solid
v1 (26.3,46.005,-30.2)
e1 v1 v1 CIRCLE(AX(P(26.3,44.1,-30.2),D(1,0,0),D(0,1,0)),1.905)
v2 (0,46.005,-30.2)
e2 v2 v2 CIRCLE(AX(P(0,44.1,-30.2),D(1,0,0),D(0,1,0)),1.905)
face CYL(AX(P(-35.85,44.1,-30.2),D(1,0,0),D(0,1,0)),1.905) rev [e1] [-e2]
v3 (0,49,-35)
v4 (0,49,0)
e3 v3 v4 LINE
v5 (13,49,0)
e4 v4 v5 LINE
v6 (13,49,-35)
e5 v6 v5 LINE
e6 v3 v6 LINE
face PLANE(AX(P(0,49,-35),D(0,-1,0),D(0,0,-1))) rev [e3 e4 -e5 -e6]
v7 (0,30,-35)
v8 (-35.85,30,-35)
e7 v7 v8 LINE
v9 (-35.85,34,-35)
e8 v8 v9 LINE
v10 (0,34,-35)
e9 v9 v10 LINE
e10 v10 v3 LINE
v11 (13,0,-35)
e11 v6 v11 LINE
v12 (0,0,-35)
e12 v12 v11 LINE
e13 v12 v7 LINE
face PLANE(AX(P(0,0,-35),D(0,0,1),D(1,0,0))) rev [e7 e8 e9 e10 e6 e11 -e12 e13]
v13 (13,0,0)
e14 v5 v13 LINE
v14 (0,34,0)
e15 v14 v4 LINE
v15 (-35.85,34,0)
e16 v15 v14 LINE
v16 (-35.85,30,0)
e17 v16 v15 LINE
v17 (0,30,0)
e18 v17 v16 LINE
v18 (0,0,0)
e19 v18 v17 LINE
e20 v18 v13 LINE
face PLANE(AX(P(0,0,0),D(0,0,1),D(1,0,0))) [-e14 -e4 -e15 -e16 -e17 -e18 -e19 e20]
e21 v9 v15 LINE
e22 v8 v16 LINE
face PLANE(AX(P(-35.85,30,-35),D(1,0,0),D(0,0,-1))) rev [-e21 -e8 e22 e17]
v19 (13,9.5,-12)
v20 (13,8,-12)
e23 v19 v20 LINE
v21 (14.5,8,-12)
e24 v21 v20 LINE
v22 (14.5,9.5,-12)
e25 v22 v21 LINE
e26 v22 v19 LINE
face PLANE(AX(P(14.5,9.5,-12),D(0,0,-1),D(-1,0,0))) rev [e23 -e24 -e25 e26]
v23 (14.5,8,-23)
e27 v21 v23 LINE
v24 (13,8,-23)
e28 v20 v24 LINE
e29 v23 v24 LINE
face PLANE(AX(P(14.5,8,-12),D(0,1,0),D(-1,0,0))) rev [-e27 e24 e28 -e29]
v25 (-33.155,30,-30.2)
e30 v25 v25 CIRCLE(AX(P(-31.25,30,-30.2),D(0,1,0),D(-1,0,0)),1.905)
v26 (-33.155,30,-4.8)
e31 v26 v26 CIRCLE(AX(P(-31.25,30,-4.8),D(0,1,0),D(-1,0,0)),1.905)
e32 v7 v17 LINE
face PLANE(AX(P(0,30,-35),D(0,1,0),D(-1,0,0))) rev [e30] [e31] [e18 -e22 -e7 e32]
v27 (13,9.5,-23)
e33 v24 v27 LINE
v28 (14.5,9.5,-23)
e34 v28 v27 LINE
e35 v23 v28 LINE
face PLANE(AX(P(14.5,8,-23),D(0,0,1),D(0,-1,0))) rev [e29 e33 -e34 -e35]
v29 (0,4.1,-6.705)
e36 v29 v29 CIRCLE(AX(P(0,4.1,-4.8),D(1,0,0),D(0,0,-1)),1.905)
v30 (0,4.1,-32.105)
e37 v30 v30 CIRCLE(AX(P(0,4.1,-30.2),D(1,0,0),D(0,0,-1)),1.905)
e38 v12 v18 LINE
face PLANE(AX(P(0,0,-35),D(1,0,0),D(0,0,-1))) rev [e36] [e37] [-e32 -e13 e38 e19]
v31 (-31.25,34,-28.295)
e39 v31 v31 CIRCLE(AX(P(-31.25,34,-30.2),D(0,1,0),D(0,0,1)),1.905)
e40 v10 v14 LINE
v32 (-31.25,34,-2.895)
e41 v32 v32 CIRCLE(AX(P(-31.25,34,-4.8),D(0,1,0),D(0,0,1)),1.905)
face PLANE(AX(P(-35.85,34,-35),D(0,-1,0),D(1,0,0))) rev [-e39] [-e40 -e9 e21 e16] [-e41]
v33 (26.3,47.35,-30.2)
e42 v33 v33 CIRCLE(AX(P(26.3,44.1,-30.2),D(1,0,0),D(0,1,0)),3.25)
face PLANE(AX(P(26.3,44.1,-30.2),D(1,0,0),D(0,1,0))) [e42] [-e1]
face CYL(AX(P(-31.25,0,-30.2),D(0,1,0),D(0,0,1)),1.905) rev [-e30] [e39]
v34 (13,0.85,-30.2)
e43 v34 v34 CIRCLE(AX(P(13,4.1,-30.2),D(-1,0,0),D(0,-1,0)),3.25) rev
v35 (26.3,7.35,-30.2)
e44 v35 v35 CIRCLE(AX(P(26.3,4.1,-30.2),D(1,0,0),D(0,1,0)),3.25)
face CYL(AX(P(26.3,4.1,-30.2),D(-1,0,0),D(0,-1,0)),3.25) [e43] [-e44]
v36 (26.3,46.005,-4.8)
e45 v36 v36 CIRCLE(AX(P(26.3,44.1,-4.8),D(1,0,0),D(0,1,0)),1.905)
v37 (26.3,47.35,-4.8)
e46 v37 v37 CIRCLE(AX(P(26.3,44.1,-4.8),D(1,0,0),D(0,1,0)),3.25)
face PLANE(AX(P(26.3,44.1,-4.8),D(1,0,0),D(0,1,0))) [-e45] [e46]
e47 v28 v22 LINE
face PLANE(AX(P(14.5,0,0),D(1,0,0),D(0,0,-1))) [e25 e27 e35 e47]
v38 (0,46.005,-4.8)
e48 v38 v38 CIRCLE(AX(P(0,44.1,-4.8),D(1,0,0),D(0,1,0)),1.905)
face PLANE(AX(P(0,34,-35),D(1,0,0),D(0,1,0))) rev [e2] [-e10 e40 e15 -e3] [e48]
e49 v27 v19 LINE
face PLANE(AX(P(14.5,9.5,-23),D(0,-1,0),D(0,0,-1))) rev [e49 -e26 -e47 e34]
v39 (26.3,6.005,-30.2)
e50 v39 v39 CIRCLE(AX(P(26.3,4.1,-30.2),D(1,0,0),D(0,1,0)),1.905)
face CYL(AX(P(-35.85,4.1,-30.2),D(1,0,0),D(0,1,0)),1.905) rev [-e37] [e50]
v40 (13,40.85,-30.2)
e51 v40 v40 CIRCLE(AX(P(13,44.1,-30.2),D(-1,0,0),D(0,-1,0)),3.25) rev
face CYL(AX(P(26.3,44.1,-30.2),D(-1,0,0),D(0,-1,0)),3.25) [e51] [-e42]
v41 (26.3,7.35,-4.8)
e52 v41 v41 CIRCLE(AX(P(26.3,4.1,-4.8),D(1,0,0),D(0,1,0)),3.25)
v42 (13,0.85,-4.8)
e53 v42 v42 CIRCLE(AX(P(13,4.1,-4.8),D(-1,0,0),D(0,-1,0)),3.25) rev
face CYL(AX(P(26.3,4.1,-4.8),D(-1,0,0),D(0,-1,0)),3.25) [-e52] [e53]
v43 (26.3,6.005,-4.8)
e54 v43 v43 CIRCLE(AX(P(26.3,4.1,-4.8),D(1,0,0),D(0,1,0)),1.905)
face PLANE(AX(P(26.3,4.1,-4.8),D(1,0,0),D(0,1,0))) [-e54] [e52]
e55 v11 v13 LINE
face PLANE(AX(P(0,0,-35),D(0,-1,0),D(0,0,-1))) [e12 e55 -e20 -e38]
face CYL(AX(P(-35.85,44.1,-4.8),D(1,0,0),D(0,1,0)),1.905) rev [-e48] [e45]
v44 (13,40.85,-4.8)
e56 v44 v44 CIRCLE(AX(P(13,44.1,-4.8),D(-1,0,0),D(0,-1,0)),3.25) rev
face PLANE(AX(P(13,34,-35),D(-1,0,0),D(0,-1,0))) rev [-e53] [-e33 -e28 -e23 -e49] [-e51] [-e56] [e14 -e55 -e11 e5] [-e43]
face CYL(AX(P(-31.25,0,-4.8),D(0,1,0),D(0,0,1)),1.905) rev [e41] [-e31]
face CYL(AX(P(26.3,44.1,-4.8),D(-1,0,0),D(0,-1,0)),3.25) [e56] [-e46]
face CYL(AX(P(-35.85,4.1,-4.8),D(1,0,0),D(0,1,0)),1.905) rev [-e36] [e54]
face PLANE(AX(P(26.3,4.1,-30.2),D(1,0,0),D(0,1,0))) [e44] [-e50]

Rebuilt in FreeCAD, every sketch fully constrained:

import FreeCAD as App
import Part
import Sketcher

V = App.Vector


def add_polygon(sketch, points):
    """Adds a closed chain of lines whose ends are joined by coincident constraints."""
    first, n = sketch.GeometryCount, len(points)
    for a, b in zip(points, points[1:] + points[:1]):
        sketch.addGeometry(Part.LineSegment(App.Vector(*a, 0), App.Vector(*b, 0)), False)
    for i in range(n):
        sketch.addConstraint(Sketcher.Constraint("Coincident", first + i, 2, first + (i + 1) % n, 1))

doc = App.newDocument("Part")
body = doc.addObject("PartDesign::Body", "Body")

sketch1 = doc.addObject("Sketcher::SketchObject", "Sketch")
body.addObject(sketch1)
sketch1.AttachmentSupport = (doc.XY_Plane, [""])
sketch1.MapMode = "FlatFace"
add_polygon(sketch1, [(0, 0), (13, 0), (13, 49), (0, 49), (0, 34), (-35.9, 34), (-35.9, 30), (0, 30)])
sketch1.addConstraint([
    Sketcher.Constraint("Horizontal", 0),
    Sketcher.Constraint("Vertical", 1),
    Sketcher.Constraint("Horizontal", 2),
    Sketcher.Constraint("Vertical", 3),
    Sketcher.Constraint("Horizontal", 4),
    Sketcher.Constraint("Vertical", 5),
    Sketcher.Constraint("Horizontal", 6),
    Sketcher.Constraint("Vertical", 7),
    Sketcher.Constraint("Coincident", 7, 2, -1, 1),
    Sketcher.Constraint("PointOnObject", 2, 2, -2),
    Sketcher.Constraint("DistanceX", 0, 1, 0, 2, 13.0),
    Sketcher.Constraint("DistanceY", 1, 1, 1, 2, 49.0),
    Sketcher.Constraint("DistanceY", 3, 2, 3, 1, 15.0),
    Sketcher.Constraint("DistanceY", 5, 2, 5, 1, 4.0),
    Sketcher.Constraint("DistanceX", 4, 2, 4, 1, 35.85),
])
pad1 = doc.addObject("PartDesign::Pad", "Pad")
body.addObject(pad1)
pad1.Profile = sketch1
pad1.Length = 35
pad1.Reversed = True

sketch2 = doc.addObject("Sketcher::SketchObject", "Sketch001")
body.addObject(sketch2)
sketch2.AttachmentSupport = (doc.XZ_Plane, [""])
sketch2.MapMode = "FlatFace"
sketch2.AttachmentOffset = App.Placement(V(0, 0, -34), App.Rotation())
sketch2.addGeometry([
    Part.Circle(V(-31.2, -4.8, 0), V(0, 0, 1), 1.9),
    Part.Circle(V(-31.2, -30.2, 0), V(0, 0, 1), 1.9),
], False)
sketch2.addConstraint([
    Sketcher.Constraint("Equal", 0, 1),
    Sketcher.Constraint("Vertical", 0, 3, 1, 3),
    Sketcher.Constraint("Diameter", 0, 3.81),
    Sketcher.Constraint("DistanceY", 0, 3, -1, 1, 4.8),
    Sketcher.Constraint("DistanceY", 1, 3, -1, 1, 30.2),
    Sketcher.Constraint("DistanceX", 0, 3, -1, 1, 31.25),
])
pocket1 = doc.addObject("PartDesign::Pocket", "Pocket")
body.addObject(pocket1)
pocket1.Profile = sketch2
pocket1.Type = "ThroughAll"
pocket1.Reversed = True

sketch3 = doc.addObject("Sketcher::SketchObject", "Sketch002")
body.addObject(sketch3)
sketch3.AttachmentSupport = (doc.YZ_Plane, [""])
sketch3.MapMode = "FlatFace"
sketch3.AttachmentOffset = App.Placement(V(0, 0, 13), App.Rotation())
sketch3.addGeometry([
    Part.Circle(V(4.1, -4.8, 0), V(0, 0, 1), 1.9),
    Part.Circle(V(4.1, -30.2, 0), V(0, 0, 1), 1.9),
], False)
sketch3.addConstraint([
    Sketcher.Constraint("Equal", 0, 1),
    Sketcher.Constraint("Vertical", 0, 3, 1, 3),
    Sketcher.Constraint("Diameter", 0, 3.81),
    Sketcher.Constraint("DistanceX", -1, 1, 0, 3, 4.1),
    Sketcher.Constraint("DistanceY", 0, 3, -1, 1, 4.8),
    Sketcher.Constraint("DistanceY", 1, 3, -1, 1, 30.2),
])
pocket2 = doc.addObject("PartDesign::Pocket", "Pocket001")
body.addObject(pocket2)
pocket2.Profile = sketch3
pocket2.Type = "ThroughAll"

sketch4 = doc.addObject("Sketcher::SketchObject", "Sketch003")
body.addObject(sketch4)
sketch4.AttachmentSupport = (doc.YZ_Plane, [""])
sketch4.MapMode = "FlatFace"
sketch4.AttachmentOffset = App.Placement(V(0, 0, 13), App.Rotation())
add_polygon(sketch4, [(9.5, -12), (8, -12), (8, -23), (9.5, -23)])
sketch4.addConstraint([
    Sketcher.Constraint("Horizontal", 0),
    Sketcher.Constraint("Vertical", 1),
    Sketcher.Constraint("Horizontal", 2),
    Sketcher.Constraint("Vertical", 3),
    Sketcher.Constraint("DistanceY", 1, 2, 1, 1, 11.0),
    Sketcher.Constraint("DistanceX", 0, 2, 0, 1, 1.5),
    Sketcher.Constraint("DistanceX", -1, 1, 0, 2, 8.0),
    Sketcher.Constraint("DistanceY", 0, 2, -1, 1, 12.0),
])
pad2 = doc.addObject("PartDesign::Pad", "Pad001")
body.addObject(pad2)
pad2.Profile = sketch4
pad2.Length = 1.5

sketch5 = doc.addObject("Sketcher::SketchObject", "Sketch004")
body.addObject(sketch5)
sketch5.AttachmentSupport = (doc.YZ_Plane, [""])
sketch5.MapMode = "FlatFace"
sketch5.AttachmentOffset = App.Placement(V(0, 0, 13), App.Rotation())
sketch5.addGeometry([
    Part.Circle(V(44.1, -4.8, 0), V(0, 0, 1), 1.9),
    Part.Circle(V(44.1, -30.2, 0), V(0, 0, 1), 1.9),
], False)
sketch5.addConstraint([
    Sketcher.Constraint("Equal", 0, 1),
    Sketcher.Constraint("Vertical", 0, 3, 1, 3),
    Sketcher.Constraint("Diameter", 0, 3.81),
    Sketcher.Constraint("DistanceX", -1, 1, 0, 3, 44.1),
    Sketcher.Constraint("DistanceY", 0, 3, -1, 1, 4.8),
    Sketcher.Constraint("DistanceY", 1, 3, -1, 1, 30.2),
])
pocket3 = doc.addObject("PartDesign::Pocket", "Pocket002")
body.addObject(pocket3)
pocket3.Profile = sketch5
pocket3.Type = "ThroughAll"

sketch6 = doc.addObject("Sketcher::SketchObject", "Sketch005")
body.addObject(sketch6)
sketch6.AttachmentSupport = (doc.YZ_Plane, [""])
sketch6.MapMode = "FlatFace"
sketch6.AttachmentOffset = App.Placement(V(0, 0, 13), App.Rotation())
sketch6.addGeometry([
    Part.Circle(V(44.1, -4.8, 0), V(0, 0, 1), 3.2),
    Part.Circle(V(44.1, -4.8, 0), V(0, 0, 1), 1.9),
    Part.Circle(V(44.1, -30.2, 0), V(0, 0, 1), 3.2),
    Part.Circle(V(44.1, -30.2, 0), V(0, 0, 1), 1.9),
    Part.Circle(V(4.1, -30.2, 0), V(0, 0, 1), 3.2),
    Part.Circle(V(4.1, -30.2, 0), V(0, 0, 1), 1.9),
    Part.Circle(V(4.1, -4.8, 0), V(0, 0, 1), 3.2),
    Part.Circle(V(4.1, -4.8, 0), V(0, 0, 1), 1.9),
], False)
sketch6.addConstraint([
    Sketcher.Constraint("Coincident", 1, 3, 0, 3),
    Sketcher.Constraint("Coincident", 3, 3, 2, 3),
    Sketcher.Constraint("Coincident", 5, 3, 4, 3),
    Sketcher.Constraint("Coincident", 7, 3, 6, 3),
    Sketcher.Constraint("Equal", 0, 2),
    Sketcher.Constraint("Equal", 1, 3),
    Sketcher.Constraint("Equal", 2, 4),
    Sketcher.Constraint("Equal", 3, 5),
    Sketcher.Constraint("Equal", 4, 6),
    Sketcher.Constraint("Equal", 5, 7),
    Sketcher.Constraint("Horizontal", 3, 3, 4, 3),
    Sketcher.Constraint("Horizontal", 1, 3, 6, 3),
    Sketcher.Constraint("Vertical", 1, 3, 2, 3),
    Sketcher.Constraint("Vertical", 5, 3, 6, 3),
    Sketcher.Constraint("Diameter", 0, 6.5),
    Sketcher.Constraint("Diameter", 1, 3.81),
    Sketcher.Constraint("DistanceX", 4, 3, 2, 3, 40.0),
    Sketcher.Constraint("DistanceX", -1, 1, 0, 3, 44.1),
    Sketcher.Constraint("DistanceY", 0, 3, -1, 1, 4.8),
    Sketcher.Constraint("DistanceY", 2, 3, -1, 1, 30.2),
])
pad3 = doc.addObject("PartDesign::Pad", "Pad002")
body.addObject(pad3)
pad3.Profile = sketch6
pad3.Length = 13.3

doc.recompute()
